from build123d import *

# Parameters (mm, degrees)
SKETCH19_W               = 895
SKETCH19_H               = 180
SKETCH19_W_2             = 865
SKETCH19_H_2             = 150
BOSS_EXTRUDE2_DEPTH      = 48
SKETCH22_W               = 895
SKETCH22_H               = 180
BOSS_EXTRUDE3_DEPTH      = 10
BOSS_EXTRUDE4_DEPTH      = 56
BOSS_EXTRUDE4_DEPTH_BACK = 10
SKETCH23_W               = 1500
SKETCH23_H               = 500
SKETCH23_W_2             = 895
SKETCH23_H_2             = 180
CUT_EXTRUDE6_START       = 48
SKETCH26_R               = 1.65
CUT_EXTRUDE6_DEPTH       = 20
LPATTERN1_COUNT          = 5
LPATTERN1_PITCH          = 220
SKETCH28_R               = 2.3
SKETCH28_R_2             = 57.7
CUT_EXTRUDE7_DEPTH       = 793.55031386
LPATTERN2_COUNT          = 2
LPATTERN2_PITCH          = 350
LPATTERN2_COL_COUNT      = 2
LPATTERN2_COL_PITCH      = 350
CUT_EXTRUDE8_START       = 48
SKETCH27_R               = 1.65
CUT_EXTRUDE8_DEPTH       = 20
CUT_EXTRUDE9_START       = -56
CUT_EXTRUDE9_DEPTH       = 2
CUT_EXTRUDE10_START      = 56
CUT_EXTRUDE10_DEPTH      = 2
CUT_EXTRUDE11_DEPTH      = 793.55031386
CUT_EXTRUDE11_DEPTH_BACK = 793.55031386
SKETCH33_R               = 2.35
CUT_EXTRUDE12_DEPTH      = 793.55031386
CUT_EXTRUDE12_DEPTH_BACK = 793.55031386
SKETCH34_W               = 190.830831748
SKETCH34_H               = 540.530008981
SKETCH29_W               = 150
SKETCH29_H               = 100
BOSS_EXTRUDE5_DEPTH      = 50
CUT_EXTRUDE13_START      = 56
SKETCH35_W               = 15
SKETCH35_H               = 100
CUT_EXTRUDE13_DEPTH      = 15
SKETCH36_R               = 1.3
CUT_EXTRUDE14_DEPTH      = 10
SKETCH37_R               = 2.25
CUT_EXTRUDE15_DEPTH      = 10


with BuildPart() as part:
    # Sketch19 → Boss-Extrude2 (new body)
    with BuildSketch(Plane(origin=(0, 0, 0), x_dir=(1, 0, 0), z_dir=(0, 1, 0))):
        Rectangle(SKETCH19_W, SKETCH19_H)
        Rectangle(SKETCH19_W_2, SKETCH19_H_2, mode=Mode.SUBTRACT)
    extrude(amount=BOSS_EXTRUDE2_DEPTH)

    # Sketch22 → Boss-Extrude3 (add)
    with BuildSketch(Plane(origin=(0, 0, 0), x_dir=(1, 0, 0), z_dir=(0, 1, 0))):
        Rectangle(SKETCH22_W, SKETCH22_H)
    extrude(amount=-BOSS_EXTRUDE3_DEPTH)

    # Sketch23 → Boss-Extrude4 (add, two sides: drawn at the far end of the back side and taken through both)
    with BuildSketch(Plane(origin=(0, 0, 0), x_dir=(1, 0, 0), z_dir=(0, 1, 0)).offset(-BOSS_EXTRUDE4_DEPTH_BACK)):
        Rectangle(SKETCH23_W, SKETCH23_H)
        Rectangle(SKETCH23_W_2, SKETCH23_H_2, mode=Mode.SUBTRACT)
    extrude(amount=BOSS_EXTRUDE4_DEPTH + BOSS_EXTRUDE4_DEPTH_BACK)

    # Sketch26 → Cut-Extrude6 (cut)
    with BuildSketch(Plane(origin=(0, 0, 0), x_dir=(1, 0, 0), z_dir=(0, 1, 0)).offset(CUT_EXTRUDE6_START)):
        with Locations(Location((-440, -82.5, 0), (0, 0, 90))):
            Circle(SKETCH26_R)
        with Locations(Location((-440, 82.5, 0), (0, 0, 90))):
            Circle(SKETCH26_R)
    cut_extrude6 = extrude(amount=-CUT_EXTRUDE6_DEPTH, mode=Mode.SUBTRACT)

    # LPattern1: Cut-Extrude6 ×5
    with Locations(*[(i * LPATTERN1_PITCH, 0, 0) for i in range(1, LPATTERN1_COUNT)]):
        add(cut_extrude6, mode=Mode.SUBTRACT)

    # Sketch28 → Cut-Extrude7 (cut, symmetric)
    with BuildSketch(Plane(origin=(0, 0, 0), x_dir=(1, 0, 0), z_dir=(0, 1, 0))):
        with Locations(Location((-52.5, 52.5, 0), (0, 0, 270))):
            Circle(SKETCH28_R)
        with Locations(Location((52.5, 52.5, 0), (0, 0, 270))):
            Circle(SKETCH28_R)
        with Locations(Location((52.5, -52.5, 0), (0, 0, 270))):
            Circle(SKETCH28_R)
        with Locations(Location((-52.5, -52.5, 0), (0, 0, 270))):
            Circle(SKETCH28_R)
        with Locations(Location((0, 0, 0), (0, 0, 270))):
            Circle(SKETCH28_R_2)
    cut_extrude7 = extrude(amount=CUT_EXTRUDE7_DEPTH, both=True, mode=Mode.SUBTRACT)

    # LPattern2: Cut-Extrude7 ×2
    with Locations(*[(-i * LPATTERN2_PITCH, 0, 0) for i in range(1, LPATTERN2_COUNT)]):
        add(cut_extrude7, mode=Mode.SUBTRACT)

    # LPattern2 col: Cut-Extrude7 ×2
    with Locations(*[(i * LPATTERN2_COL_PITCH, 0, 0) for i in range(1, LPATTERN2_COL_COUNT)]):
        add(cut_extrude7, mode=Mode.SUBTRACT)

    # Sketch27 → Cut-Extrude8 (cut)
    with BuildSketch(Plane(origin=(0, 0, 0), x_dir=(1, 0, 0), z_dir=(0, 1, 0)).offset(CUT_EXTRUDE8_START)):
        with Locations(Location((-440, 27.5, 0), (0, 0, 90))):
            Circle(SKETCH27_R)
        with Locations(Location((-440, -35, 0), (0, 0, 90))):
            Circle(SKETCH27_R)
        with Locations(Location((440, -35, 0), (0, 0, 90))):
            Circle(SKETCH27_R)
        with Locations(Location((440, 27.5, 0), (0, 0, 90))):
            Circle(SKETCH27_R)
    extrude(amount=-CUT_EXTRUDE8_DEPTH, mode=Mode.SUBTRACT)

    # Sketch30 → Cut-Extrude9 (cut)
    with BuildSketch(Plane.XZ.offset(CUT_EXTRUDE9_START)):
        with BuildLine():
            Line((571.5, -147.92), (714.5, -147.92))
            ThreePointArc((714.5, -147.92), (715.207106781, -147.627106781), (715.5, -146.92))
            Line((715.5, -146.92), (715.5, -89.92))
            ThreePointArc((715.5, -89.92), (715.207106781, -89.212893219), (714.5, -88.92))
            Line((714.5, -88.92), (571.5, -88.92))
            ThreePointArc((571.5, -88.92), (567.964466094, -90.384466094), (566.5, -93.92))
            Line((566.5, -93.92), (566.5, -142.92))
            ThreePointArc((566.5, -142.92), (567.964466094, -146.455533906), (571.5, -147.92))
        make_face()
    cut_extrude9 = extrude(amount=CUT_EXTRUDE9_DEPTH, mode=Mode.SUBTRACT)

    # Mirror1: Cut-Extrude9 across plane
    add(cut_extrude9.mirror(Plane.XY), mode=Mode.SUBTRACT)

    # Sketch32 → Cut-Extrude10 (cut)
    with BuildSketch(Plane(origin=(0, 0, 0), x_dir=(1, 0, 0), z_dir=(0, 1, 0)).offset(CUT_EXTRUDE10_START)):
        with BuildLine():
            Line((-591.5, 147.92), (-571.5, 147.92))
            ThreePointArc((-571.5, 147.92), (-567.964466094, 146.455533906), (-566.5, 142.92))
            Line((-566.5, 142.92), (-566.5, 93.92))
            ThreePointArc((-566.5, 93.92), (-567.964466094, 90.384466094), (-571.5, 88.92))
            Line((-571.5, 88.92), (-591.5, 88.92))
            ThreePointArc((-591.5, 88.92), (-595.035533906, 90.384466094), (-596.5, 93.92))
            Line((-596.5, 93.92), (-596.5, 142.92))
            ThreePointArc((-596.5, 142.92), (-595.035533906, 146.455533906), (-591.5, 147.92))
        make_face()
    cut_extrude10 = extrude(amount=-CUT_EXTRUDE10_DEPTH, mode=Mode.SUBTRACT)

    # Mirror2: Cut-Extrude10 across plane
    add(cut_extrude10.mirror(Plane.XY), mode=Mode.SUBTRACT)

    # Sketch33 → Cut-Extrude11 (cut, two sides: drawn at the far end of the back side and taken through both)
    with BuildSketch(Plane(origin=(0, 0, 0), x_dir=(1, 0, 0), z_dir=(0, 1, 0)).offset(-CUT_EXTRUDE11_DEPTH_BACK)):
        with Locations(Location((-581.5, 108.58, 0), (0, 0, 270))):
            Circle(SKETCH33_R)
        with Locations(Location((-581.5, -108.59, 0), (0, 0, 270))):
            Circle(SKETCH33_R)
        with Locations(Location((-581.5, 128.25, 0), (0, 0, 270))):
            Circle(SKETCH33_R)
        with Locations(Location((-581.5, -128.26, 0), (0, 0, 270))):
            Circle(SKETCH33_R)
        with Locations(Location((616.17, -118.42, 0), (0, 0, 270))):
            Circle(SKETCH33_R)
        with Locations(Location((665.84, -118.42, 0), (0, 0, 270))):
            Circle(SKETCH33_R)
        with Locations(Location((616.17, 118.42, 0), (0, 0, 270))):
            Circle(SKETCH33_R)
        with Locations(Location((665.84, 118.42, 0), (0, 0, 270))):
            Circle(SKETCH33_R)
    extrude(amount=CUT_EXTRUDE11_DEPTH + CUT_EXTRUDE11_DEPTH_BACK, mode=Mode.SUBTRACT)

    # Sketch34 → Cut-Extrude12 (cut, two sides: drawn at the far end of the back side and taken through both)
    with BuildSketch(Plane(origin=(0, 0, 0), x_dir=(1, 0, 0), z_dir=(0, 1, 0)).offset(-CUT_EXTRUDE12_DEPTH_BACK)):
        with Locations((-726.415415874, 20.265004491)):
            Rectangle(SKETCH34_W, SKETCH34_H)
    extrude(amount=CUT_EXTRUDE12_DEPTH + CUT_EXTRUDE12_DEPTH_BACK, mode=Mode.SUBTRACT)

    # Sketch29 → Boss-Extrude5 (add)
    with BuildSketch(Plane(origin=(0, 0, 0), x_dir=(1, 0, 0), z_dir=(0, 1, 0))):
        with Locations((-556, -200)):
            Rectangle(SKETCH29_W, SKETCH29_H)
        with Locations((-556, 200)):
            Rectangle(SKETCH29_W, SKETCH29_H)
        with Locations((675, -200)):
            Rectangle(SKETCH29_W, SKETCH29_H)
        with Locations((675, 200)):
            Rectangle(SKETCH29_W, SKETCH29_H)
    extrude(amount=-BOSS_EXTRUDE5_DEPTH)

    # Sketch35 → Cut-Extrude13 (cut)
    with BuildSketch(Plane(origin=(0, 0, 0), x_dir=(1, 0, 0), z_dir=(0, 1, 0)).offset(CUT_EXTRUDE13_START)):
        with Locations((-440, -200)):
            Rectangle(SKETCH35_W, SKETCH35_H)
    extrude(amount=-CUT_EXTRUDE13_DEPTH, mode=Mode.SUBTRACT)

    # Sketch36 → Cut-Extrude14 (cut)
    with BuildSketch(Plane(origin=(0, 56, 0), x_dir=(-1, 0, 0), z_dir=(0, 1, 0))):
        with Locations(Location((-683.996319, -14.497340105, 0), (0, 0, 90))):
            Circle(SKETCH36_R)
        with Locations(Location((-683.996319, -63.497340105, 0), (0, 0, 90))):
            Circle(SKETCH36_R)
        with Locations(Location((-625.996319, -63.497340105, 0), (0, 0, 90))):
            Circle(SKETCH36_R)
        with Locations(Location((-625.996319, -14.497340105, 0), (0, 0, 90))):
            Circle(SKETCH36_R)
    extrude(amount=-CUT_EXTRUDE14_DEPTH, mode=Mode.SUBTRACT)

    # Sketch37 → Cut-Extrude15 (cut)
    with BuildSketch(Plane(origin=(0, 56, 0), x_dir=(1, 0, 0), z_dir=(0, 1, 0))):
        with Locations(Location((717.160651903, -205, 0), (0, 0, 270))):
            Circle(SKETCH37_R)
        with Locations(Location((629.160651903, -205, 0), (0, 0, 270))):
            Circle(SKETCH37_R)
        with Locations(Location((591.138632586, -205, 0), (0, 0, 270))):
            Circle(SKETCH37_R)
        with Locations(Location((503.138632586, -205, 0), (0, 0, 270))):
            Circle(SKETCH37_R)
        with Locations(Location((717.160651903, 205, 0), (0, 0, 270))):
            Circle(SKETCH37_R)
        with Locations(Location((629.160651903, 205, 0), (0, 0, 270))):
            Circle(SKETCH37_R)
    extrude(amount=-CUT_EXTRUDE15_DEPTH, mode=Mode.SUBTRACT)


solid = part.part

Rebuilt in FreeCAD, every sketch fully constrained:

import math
import FreeCAD as App
import Part
import Sketcher

V = App.Vector


def add_polygon(sketch, points):
    """Adds a closed chain of lines whose ends are joined by coincident constraints."""
    first, n = sketch.GeometryCount, len(points)
    for a, b in zip(points, points[1:] + points[:1]):
        sketch.addGeometry(Part.LineSegment(App.Vector(*a, 0), App.Vector(*b, 0)), False)
    for i in range(n):
        sketch.addConstraint(Sketcher.Constraint("Coincident", first + i, 2, first + (i + 1) % n, 1))

doc = App.newDocument("Part")
body = doc.addObject("PartDesign::Body", "Body")

# Sketch on XZ plane
sketch1 = body.newObject("Sketcher::SketchObject", "Sketch")
sketch1.AttachmentSupport = (doc.getObject("XZ_Plane"), [""])
sketch1.MapMode = "FlatFace"
add_polygon(sketch1, [(-448, -90), (-448, 90), (448, 90), (448, -90)])  # lines 0-3
add_polygon(sketch1, [(432, 75), (-432, 75), (-432, -75), (432, -75)])  # lines 4-7
sketch1.addConstraint(Sketcher.Constraint("Vertical", 0))
sketch1.addConstraint(Sketcher.Constraint("Horizontal", 1))
sketch1.addConstraint(Sketcher.Constraint("Vertical", 2))
sketch1.addConstraint(Sketcher.Constraint("Horizontal", 3))
sketch1.addConstraint(Sketcher.Constraint("Horizontal", 4))
sketch1.addConstraint(Sketcher.Constraint("Vertical", 5))
sketch1.addConstraint(Sketcher.Constraint("Horizontal", 6))
sketch1.addConstraint(Sketcher.Constraint("Vertical", 7))
sketch1.addConstraint(Sketcher.Constraint("Symmetric", 0, 2, 2, 2, -1, 1))
sketch1.addConstraint(Sketcher.Constraint("Symmetric", 4, 2, 6, 2, -1, 1))
sketch1.addConstraint(Sketcher.Constraint("DistanceX", 1, 1, 1, 2, 895.0))
sketch1.addConstraint(Sketcher.Constraint("DistanceX", 4, 2, 4, 1, 865.0))
sketch1.addConstraint(Sketcher.Constraint("DistanceY", 0, 1, 0, 2, 180.0))
sketch1.addConstraint(Sketcher.Constraint("DistanceY", 5, 2, 5, 1, 150.0))
pad1 = body.newObject("PartDesign::Pad", "Pad")
pad1.Profile = sketch1
pad1.Length = 48
pad1.Reversed = True

# Sketch on XZ plane
sketch2 = body.newObject("Sketcher::SketchObject", "Sketch001")
sketch2.AttachmentSupport = (doc.getObject("XZ_Plane"), [""])
sketch2.MapMode = "FlatFace"
add_polygon(sketch2, [(-448, -90), (-448, 90), (448, 90), (448, -90)])  # lines 0-3
sketch2.addConstraint(Sketcher.Constraint("Vertical", 0))
sketch2.addConstraint(Sketcher.Constraint("Horizontal", 1))
sketch2.addConstraint(Sketcher.Constraint("Vertical", 2))
sketch2.addConstraint(Sketcher.Constraint("Horizontal", 3))
sketch2.addConstraint(Sketcher.Constraint("Symmetric", 0, 2, 2, 2, -1, 1))
sketch2.addConstraint(Sketcher.Constraint("DistanceX", 1, 1, 1, 2, 895.0))
sketch2.addConstraint(Sketcher.Constraint("DistanceY", 0, 1, 0, 2, 180.0))
pad2 = body.newObject("PartDesign::Pad", "Pad001")
pad2.Profile = sketch2
pad2.Length = 10

# Sketch on XZ plane
sketch3 = body.newObject("Sketcher::SketchObject", "Sketch002")
sketch3.AttachmentSupport = (doc.getObject("XZ_Plane"), [""])
sketch3.MapMode = "FlatFace"
add_polygon(sketch3, [(-750, -250), (-750, 250), (750, 250), (750, -250)])  # lines 0-3
add_polygon(sketch3, [(448, 90), (-448, 90), (-448, -90), (448, -90)])  # lines 4-7
sketch3.addConstraint(Sketcher.Constraint("Vertical", 0))
sketch3.addConstraint(Sketcher.Constraint("Horizontal", 1))
sketch3.addConstraint(Sketcher.Constraint("Vertical", 2))
sketch3.addConstraint(Sketcher.Constraint("Horizontal", 3))
sketch3.addConstraint(Sketcher.Constraint("Horizontal", 4))
sketch3.addConstraint(Sketcher.Constraint("Vertical", 5))
sketch3.addConstraint(Sketcher.Constraint("Horizontal", 6))
sketch3.addConstraint(Sketcher.Constraint("Vertical", 7))
sketch3.addConstraint(Sketcher.Constraint("Symmetric", 0, 2, 2, 2, -1, 1))
sketch3.addConstraint(Sketcher.Constraint("Symmetric", 4, 2, 6, 2, -1, 1))
sketch3.addConstraint(Sketcher.Constraint("DistanceX", 1, 1, 1, 2, 1500.0))
sketch3.addConstraint(Sketcher.Constraint("DistanceX", 4, 2, 4, 1, 895.0))
sketch3.addConstraint(Sketcher.Constraint("DistanceY", 0, 1, 0, 2, 500.0))
sketch3.addConstraint(Sketcher.Constraint("DistanceY", 5, 2, 5, 1, 180.0))
pad3 = body.newObject("PartDesign::Pad", "Pad002")
pad3.Profile = sketch3
pad3.Type = "TwoLengths"
pad3.Length = 56
pad3.Length2 = 10
pad3.Reversed = True

# Sketch on XZ plane
sketch4 = body.newObject("Sketcher::SketchObject", "Sketch003")
sketch4.AttachmentSupport = (doc.getObject("XZ_Plane"), [""])
sketch4.MapMode = "FlatFace"
sketch4.AttachmentOffset = App.Placement(V(0, 0, -48), App.Rotation())
sketch4.addGeometry(Part.Circle(V(-440, 82.5, 0), V(0, 0, 1), 1.6), False)
sketch4.addGeometry(Part.Circle(V(-440, -82.5, 0), V(0, 0, 1), 1.6), False)
sketch4.addConstraint(Sketcher.Constraint("Equal", 0, 1))
sketch4.addConstraint(Sketcher.Constraint("Symmetric", 0, 3, 1, 3, -1))
sketch4.addConstraint(Sketcher.Constraint("Diameter", 0, 3.3))
sketch4.addConstraint(Sketcher.Constraint("DistanceX", 0, 3, -1, 1, 440.0))
sketch4.addConstraint(Sketcher.Constraint("DistanceY", 1, 3, 0, 3, 165.0))
pocket1 = body.newObject("PartDesign::Pocket", "Pocket")
pocket1.Profile = sketch4
pocket1.Length = 20
pocket1.Reversed = True
doc.recompute()

linearpattern = body.newObject("PartDesign::LinearPattern", "LinearPattern")
linearpattern.Originals = [pocket1]
linearpattern.Direction = (doc.getObject("X_Axis"), [""])
linearpattern.Mode = "offset"
linearpattern.Offset = 220
linearpattern.Occurrences = 5
body.Tip = linearpattern

# Sketch on XZ plane
sketch5 = body.newObject("Sketcher::SketchObject", "Sketch004")
sketch5.AttachmentSupport = (doc.getObject("XZ_Plane"), [""])
sketch5.MapMode = "FlatFace"
sketch5.addGeometry(Part.Circle(V(-52.5, -52.5, 0), V(0, 0, 1), 2.3), False)
sketch5.addGeometry(Part.Circle(V(52.5, -52.5, 0), V(0, 0, 1), 2.3), False)
sketch5.addGeometry(Part.Circle(V(52.5, 52.5, 0), V(0, 0, 1), 2.3), False)
sketch5.addGeometry(Part.Circle(V(-52.5, 52.5, 0), V(0, 0, 1), 2.3), False)
sketch5.addGeometry(Part.Circle(V(0, 0, 0), V(0, 0, 1), 57.7), False)
sketch5.addConstraint(Sketcher.Constraint("Coincident", 4, 3, -1, 1))
sketch5.addConstraint(Sketcher.Constraint("Equal", 0, 1))
sketch5.addConstraint(Sketcher.Constraint("Equal", 1, 2))
sketch5.addConstraint(Sketcher.Constraint("Equal", 2, 3))
sketch5.addConstraint(Sketcher.Constraint("Symmetric", 0, 3, 2, 3, -1, 1))
sketch5.addConstraint(Sketcher.Constraint("Symmetric", 1, 3, 3, 3, -1, 1))
sketch5.addConstraint(Sketcher.Constraint("Symmetric", 0, 3, 1, 3, -2))
sketch5.addConstraint(Sketcher.Constraint("Diameter", 0, 4.6))
sketch5.addConstraint(Sketcher.Constraint("Diameter", 4, 115.4))
sketch5.addConstraint(Sketcher.Constraint("DistanceX", 0, 3, 1, 3, 105.0))
sketch5.addConstraint(Sketcher.Constraint("DistanceY", 1, 3, 2, 3, 105.0))
pocket2 = body.newObject("PartDesign::Pocket", "Pocket001")
pocket2.Profile = sketch5
pocket2.Length = 1587.100628
pocket2.Midplane = True
doc.recompute()

linearpattern2 = body.newObject("PartDesign::LinearPattern", "LinearPattern001")
linearpattern2.Originals = [pocket2]
linearpattern2.Direction = (doc.getObject("X_Axis"), [""])
linearpattern2.Mode = "offset"
linearpattern2.Offset = 350
linearpattern2.Occurrences = 2
linearpattern2.Reversed = True
body.Tip = linearpattern2
doc.recompute()

linearpattern3 = body.newObject("PartDesign::LinearPattern", "LinearPattern002")
linearpattern3.Originals = [pocket2]
linearpattern3.Direction = (doc.getObject("X_Axis"), [""])
linearpattern3.Mode = "offset"
linearpattern3.Offset = 350
linearpattern3.Occurrences = 2
body.Tip = linearpattern3

# Sketch on XZ plane
sketch6 = body.newObject("Sketcher::SketchObject", "Sketch005")
sketch6.AttachmentSupport = (doc.getObject("XZ_Plane"), [""])
sketch6.MapMode = "FlatFace"
sketch6.AttachmentOffset = App.Placement(V(0, 0, -48), App.Rotation())
sketch6.addGeometry(Part.Circle(V(-440, -27.5, 0), V(0, 0, 1), 1.6), False)
sketch6.addGeometry(Part.Circle(V(-440, 35, 0), V(0, 0, 1), 1.6), False)
sketch6.addGeometry(Part.Circle(V(440, 35, 0), V(0, 0, 1), 1.6), False)
sketch6.addGeometry(Part.Circle(V(440, -27.5, 0), V(0, 0, 1), 1.6), False)
sketch6.addConstraint(Sketcher.Constraint("Equal", 0, 1))
sketch6.addConstraint(Sketcher.Constraint("Equal", 1, 2))
sketch6.addConstraint(Sketcher.Constraint("Equal", 2, 3))
sketch6.addConstraint(Sketcher.Constraint("Symmetric", 1, 3, 2, 3, -2))
sketch6.addConstraint(Sketcher.Constraint("Symmetric", 0, 3, 3, 3, -2))
sketch6.addConstraint(Sketcher.Constraint("Vertical", 0, 3, 1, 3))
sketch6.addConstraint(Sketcher.Constraint("Diameter", 0, 3.3))
sketch6.addConstraint(Sketcher.Constraint("DistanceX", 0, 3, -1, 1, 440.0))
sketch6.addConstraint(Sketcher.Constraint("DistanceY", -1, 1, 1, 3, 35.0))
sketch6.addConstraint(Sketcher.Constraint("DistanceY", 0, 3, -1, 1, 27.5))
pocket3 = body.newObject("PartDesign::Pocket", "Pocket002")
pocket3.Profile = sketch6
pocket3.Length = 20
pocket3.Reversed = True

# Sketch on XZ plane
sketch7 = body.newObject("Sketcher::SketchObject", "Sketch006")
sketch7.AttachmentSupport = (doc.getObject("XZ_Plane"), [""])
sketch7.MapMode = "FlatFace"
sketch7.AttachmentOffset = App.Placement(V(0, 0, -56), App.Rotation())
sketch7.addGeometry(Part.LineSegment(V(571.5, -147.9, 0), V(714.5, -147.9, 0)), False)
sketch7.addGeometry(Part.ArcOfCircle(Part.Circle(V(714.5, -146.9, 0), V(0, 0, 1), 1), math.radians(-90), math.radians(0)), False)
sketch7.addGeometry(Part.LineSegment(V(715.5, -146.9, 0), V(715.5, -89.9, 0)), False)
sketch7.addGeometry(Part.ArcOfCircle(Part.Circle(V(714.5, -89.9, 0), V(0, 0, 1), 1), math.radians(0), math.radians(90)), False)
sketch7.addGeometry(Part.LineSegment(V(714.5, -88.9, 0), V(571.5, -88.9, 0)), False)
sketch7.addGeometry(Part.ArcOfCircle(Part.Circle(V(571.5, -93.9, 0), V(0, 0, 1), 5), math.radians(90), math.radians(180)), False)
sketch7.addGeometry(Part.LineSegment(V(566.5, -93.9, 0), V(566.5, -142.9, 0)), False)
sketch7.addGeometry(Part.ArcOfCircle(Part.Circle(V(571.5, -142.9, 0), V(0, 0, 1), 5), math.radians(180), math.radians(270)), False)
sketch7.addConstraint(Sketcher.Constraint("Tangent", 0, 2, 1, 1))
sketch7.addConstraint(Sketcher.Constraint("Tangent", 1, 2, 2, 1))
sketch7.addConstraint(Sketcher.Constraint("Tangent", 2, 2, 3, 1))
sketch7.addConstraint(Sketcher.Constraint("Tangent", 3, 2, 4, 1))
sketch7.addConstraint(Sketcher.Constraint("Tangent", 4, 2, 5, 1))
sketch7.addConstraint(Sketcher.Constraint("Tangent", 5, 2, 6, 1))
sketch7.addConstraint(Sketcher.Constraint("Tangent", 6, 2, 7, 1))
sketch7.addConstraint(Sketcher.Constraint("Tangent", 7, 2, 0, 1))
sketch7.addConstraint(Sketcher.Constraint("Horizontal", 0))
sketch7.addConstraint(Sketcher.Constraint("Vertical", 2))
sketch7.addConstraint(Sketcher.Constraint("Horizontal", 4))
sketch7.addConstraint(Sketcher.Constraint("Vertical", 6))
sketch7.addConstraint(Sketcher.Constraint("Equal", 1, 3))
sketch7.addConstraint(Sketcher.Constraint("Equal", 5, 7))
sketch7.addConstraint(Sketcher.Constraint("Radius", 1, 1.0))
sketch7.addConstraint(Sketcher.Constraint("Radius", 5, 5.0))
sketch7.addConstraint(Sketcher.Constraint("DistanceX", 0, 1, 0, 2, 143.0))
sketch7.addConstraint(Sketcher.Constraint("DistanceY", 2, 1, 2, 2, 57.0))
sketch7.addConstraint(Sketcher.Constraint("DistanceX", -1, 1, 1, 3, 714.5))
sketch7.addConstraint(Sketcher.Constraint("DistanceY", 1, 3, -1, 1, 146.92))
pocket4 = body.newObject("PartDesign::Pocket", "Pocket003")
pocket4.Profile = sketch7
pocket4.Length = 2
pocket4.Reversed = True
doc.recompute()

mirrored = body.newObject("PartDesign::Mirrored", "Mirrored")
mirrored.Originals = [pocket4]
mirrored.MirrorPlane = (doc.getObject("XY_Plane"), [""])
body.Tip = mirrored

# Sketch on XZ plane
sketch8 = body.newObject("Sketcher::SketchObject", "Sketch007")
sketch8.AttachmentSupport = (doc.getObject("XZ_Plane"), [""])
sketch8.MapMode = "FlatFace"
sketch8.AttachmentOffset = App.Placement(V(0, 0, -56), App.Rotation())
sketch8.addGeometry(Part.LineSegment(V(-572, -148, 0), V(-592, -148, 0)), False)
sketch8.addGeometry(Part.ArcOfCircle(Part.Circle(V(-592, -143, 0), V(0, 0, 1), 5), math.radians(180), math.radians(270)), False)
sketch8.addGeometry(Part.LineSegment(V(-596, -143, 0), V(-596, -94, 0)), False)
sketch8.addGeometry(Part.ArcOfCircle(Part.Circle(V(-592, -94, 0), V(0, 0, 1), 5), math.radians(90), math.radians(180)), False)
sketch8.addGeometry(Part.LineSegment(V(-592, -89, 0), V(-572, -89, 0)), False)
sketch8.addGeometry(Part.ArcOfCircle(Part.Circle(V(-572, -94, 0), V(0, 0, 1), 5), math.radians(0), math.radians(90)), False)
sketch8.addGeometry(Part.LineSegment(V(-566, -94, 0), V(-566, -143, 0)), False)
sketch8.addGeometry(Part.ArcOfCircle(Part.Circle(V(-572, -143, 0), V(0, 0, 1), 5), math.radians(-90), math.radians(0)), False)
sketch8.addConstraint(Sketcher.Constraint("Tangent", 0, 2, 1, 2))
sketch8.addConstraint(Sketcher.Constraint("Tangent", 1, 1, 2, 1))
sketch8.addConstraint(Sketcher.Constraint("Tangent", 2, 2, 3, 2))
sketch8.addConstraint(Sketcher.Constraint("Tangent", 3, 1, 4, 1))
sketch8.addConstraint(Sketcher.Constraint("Tangent", 4, 2, 5, 2))
sketch8.addConstraint(Sketcher.Constraint("Tangent", 5, 1, 6, 1))
sketch8.addConstraint(Sketcher.Constraint("Tangent", 6, 2, 7, 2))
sketch8.addConstraint(Sketcher.Constraint("Tangent", 7, 1, 0, 1))
sketch8.addConstraint(Sketcher.Constraint("Horizontal", 0))
sketch8.addConstraint(Sketcher.Constraint("Vertical", 2))
sketch8.addConstraint(Sketcher.Constraint("Horizontal", 4))
sketch8.addConstraint(Sketcher.Constraint("Vertical", 6))
sketch8.addConstraint(Sketcher.Constraint("Equal", 1, 3))
sketch8.addConstraint(Sketcher.Constraint("Equal", 3, 5))
sketch8.addConstraint(Sketcher.Constraint("Equal", 5, 7))
sketch8.addConstraint(Sketcher.Constraint("Radius", 1, 5.0))
sketch8.addConstraint(Sketcher.Constraint("DistanceX", 0, 2, 0, 1, 20.0))
sketch8.addConstraint(Sketcher.Constraint("DistanceY", 2, 1, 2, 2, 49.0))
sketch8.addConstraint(Sketcher.Constraint("DistanceX", 1, 3, -1, 1, 591.5))
sketch8.addConstraint(Sketcher.Constraint("DistanceY", 1, 3, -1, 1, 142.92))
pocket5 = body.newObject("PartDesign::Pocket", "Pocket004")
pocket5.Profile = sketch8
pocket5.Length = 2
pocket5.Reversed = True
doc.recompute()

mirrored2 = body.newObject("PartDesign::Mirrored", "Mirrored001")
mirrored2.Originals = [pocket5]
mirrored2.MirrorPlane = (doc.getObject("XY_Plane"), [""])
body.Tip = mirrored2

# Sketch on XZ plane
sketch9 = body.newObject("Sketcher::SketchObject", "Sketch008")
sketch9.AttachmentSupport = (doc.getObject("XZ_Plane"), [""])
sketch9.MapMode = "FlatFace"
sketch9.addGeometry(Part.Circle(V(-581.5, -108.6, 0), V(0, 0, 1), 2.4), False)
sketch9.addGeometry(Part.Circle(V(-581.5, 108.6, 0), V(0, 0, 1), 2.4), False)
sketch9.addGeometry(Part.Circle(V(-581.5, -128.2, 0), V(0, 0, 1), 2.4), False)
sketch9.addGeometry(Part.Circle(V(-581.5, 128.3, 0), V(0, 0, 1), 2.4), False)
sketch9.addGeometry(Part.Circle(V(616.2, 118.4, 0), V(0, 0, 1), 2.4), False)
sketch9.addGeometry(Part.Circle(V(665.8, 118.4, 0), V(0, 0, 1), 2.4), False)
sketch9.addGeometry(Part.Circle(V(616.2, -118.4, 0), V(0, 0, 1), 2.4), False)
sketch9.addGeometry(Part.Circle(V(665.8, -118.4, 0), V(0, 0, 1), 2.4), False)
sketch9.addConstraint(Sketcher.Constraint("Equal", 0, 1))
sketch9.addConstraint(Sketcher.Constraint("Equal", 1, 2))
sketch9.addConstraint(Sketcher.Constraint("Equal", 2, 3))
sketch9.addConstraint(Sketcher.Constraint("Equal", 3, 4))
sketch9.addConstraint(Sketcher.Constraint("Equal", 4, 5))
sketch9.addConstraint(Sketcher.Constraint("Equal", 5, 6))
sketch9.addConstraint(Sketcher.Constraint("Equal", 6, 7))
sketch9.addConstraint(Sketcher.Constraint("Symmetric", 4, 3, 6, 3, -1))
sketch9.addConstraint(Sketcher.Constraint("Symmetric", 5, 3, 7, 3, -1))
sketch9.addConstraint(Sketcher.Constraint("Horizontal", 4, 3, 5, 3))
sketch9.addConstraint(Sketcher.Constraint("Vertical", 0, 3, 1, 3))
sketch9.addConstraint(Sketcher.Constraint("Vertical", 1, 3, 2, 3))
sketch9.addConstraint(Sketcher.Constraint("Vertical", 2, 3, 3, 3))
sketch9.addConstraint(Sketcher.Constraint("Diameter", 0, 4.7))
sketch9.addConstraint(Sketcher.Constraint("DistanceY", 0, 3, 4, 3, 227.0))
sketch9.addConstraint(Sketcher.Constraint("DistanceX", 0, 3, -1, 1, 581.5))
sketch9.addConstraint(Sketcher.Constraint("DistanceY", 0, 3, -1, 1, 108.58))
sketch9.addConstraint(Sketcher.Constraint("DistanceY", -1, 1, 1, 3, 108.59))
sketch9.addConstraint(Sketcher.Constraint("DistanceY", 2, 3, -1, 1, 128.25))
sketch9.addConstraint(Sketcher.Constraint("DistanceY", -1, 1, 3, 3, 128.26))
sketch9.addConstraint(Sketcher.Constraint("DistanceX", -1, 1, 4, 3, 616.17))
sketch9.addConstraint(Sketcher.Constraint("DistanceX", -1, 1, 5, 3, 665.84))
pocket6 = body.newObject("PartDesign::Pocket", "Pocket005")
pocket6.Profile = sketch9
pocket6.Type = "ThroughAll"
pocket6.Midplane = True

# Sketch on XZ plane
sketch10 = body.newObject("Sketcher::SketchObject", "Sketch009")
sketch10.AttachmentSupport = (doc.getObject("XZ_Plane"), [""])
sketch10.MapMode = "FlatFace"
add_polygon(sketch10, [(-822, -291), (-822, 250), (-631, 250), (-631, -291)])  # lines 0-3
sketch10.addConstraint(Sketcher.Constraint("Vertical", 0))
sketch10.addConstraint(Sketcher.Constraint("Horizontal", 1))
sketch10.addConstraint(Sketcher.Constraint("Vertical", 2))
sketch10.addConstraint(Sketcher.Constraint("Horizontal", 3))
sketch10.addConstraint(Sketcher.Constraint("DistanceY", -1, 1, 0, 2, 250.0))
sketch10.addConstraint(Sketcher.Constraint("DistanceX", 1, 2, -1, 1, 631.0))
sketch10.addConstraint(Sketcher.Constraint("DistanceX", 1, 1, 1, 2, 190.830832))
sketch10.addConstraint(Sketcher.Constraint("DistanceY", 0, 1, 0, 2, 540.530009))
pocket7 = body.newObject("PartDesign::Pocket", "Pocket006")
pocket7.Profile = sketch10
pocket7.Type = "ThroughAll"
pocket7.Midplane = True

# Sketch on XZ plane
sketch11 = body.newObject("Sketcher::SketchObject", "Sketch010")
sketch11.AttachmentSupport = (doc.getObject("XZ_Plane"), [""])
sketch11.MapMode = "FlatFace"
add_polygon(sketch11, [(-631, 150), (-631, 250), (-481, 250), (-481, 150)])  # lines 0-3
add_polygon(sketch11, [(-631, -250), (-631, -150), (-481, -150), (-481, -250)])  # lines 4-7
add_polygon(sketch11, [(600, 150), (600, 250), (750, 250), (750, 150)])  # lines 8-11
add_polygon(sketch11, [(600, -250), (600, -150), (750, -150), (750, -250)])  # lines 12-15
sketch11.addConstraint(Sketcher.Constraint("Vertical", 0))
sketch11.addConstraint(Sketcher.Constraint("Horizontal", 1))
sketch11.addConstraint(Sketcher.Constraint("Vertical", 2))
sketch11.addConstraint(Sketcher.Constraint("Horizontal", 3))
sketch11.addConstraint(Sketcher.Constraint("Vertical", 4))
sketch11.addConstraint(Sketcher.Constraint("Horizontal", 5))
sketch11.addConstraint(Sketcher.Constraint("Vertical", 6))
sketch11.addConstraint(Sketcher.Constraint("Horizontal", 7))
sketch11.addConstraint(Sketcher.Constraint("Vertical", 8))
sketch11.addConstraint(Sketcher.Constraint("Horizontal", 9))
sketch11.addConstraint(Sketcher.Constraint("Vertical", 10))
sketch11.addConstraint(Sketcher.Constraint("Horizontal", 11))
sketch11.addConstraint(Sketcher.Constraint("Vertical", 12))
sketch11.addConstraint(Sketcher.Constraint("Horizontal", 13))
sketch11.addConstraint(Sketcher.Constraint("Vertical", 14))
sketch11.addConstraint(Sketcher.Constraint("Horizontal", 15))
sketch11.addConstraint(Sketcher.Constraint("Symmetric", 3, 2, 4, 2, -1))
sketch11.addConstraint(Sketcher.Constraint("Symmetric", 1, 2, 6, 2, -1))
sketch11.addConstraint(Sketcher.Constraint("Symmetric", 11, 2, 12, 2, -1))
sketch11.addConstraint(Sketcher.Constraint("Symmetric", 9, 2, 14, 2, -1))
sketch11.addConstraint(Sketcher.Constraint("Horizontal", 1, 2, 8, 2))
sketch11.addConstraint(Sketcher.Constraint("Horizontal", 3, 2, 10, 2))
sketch11.addConstraint(Sketcher.Constraint("Equal", 7, 9))
sketch11.addConstraint(Sketcher.Constraint("DistanceX", 1, 1, 1, 2, 150.0))
sketch11.addConstraint(Sketcher.Constraint("DistanceY", 0, 1, 0, 2, 100.0))
sketch11.addConstraint(Sketcher.Constraint("DistanceX", 0, 2, -1, 1, 631.0))
sketch11.addConstraint(Sketcher.Constraint("DistanceY", -1, 1, 0, 2, 250.0))
sketch11.addConstraint(Sketcher.Constraint("DistanceX", -1, 1, 8, 2, 600.0))
pad4 = body.newObject("PartDesign::Pad", "Pad003")
pad4.Profile = sketch11
pad4.Length = 50

# Sketch on XZ plane
sketch12 = body.newObject("Sketcher::SketchObject", "Sketch011")
sketch12.AttachmentSupport = (doc.getObject("XZ_Plane"), [""])
sketch12.MapMode = "FlatFace"
sketch12.AttachmentOffset = App.Placement(V(0, 0, -56), App.Rotation())
add_polygon(sketch12, [(-448, 150), (-448, 250), (-432, 250), (-432, 150)])  # lines 0-3
sketch12.addConstraint(Sketcher.Constraint("Vertical", 0))
sketch12.addConstraint(Sketcher.Constraint("Horizontal", 1))
sketch12.addConstraint(Sketcher.Constraint("Vertical", 2))
sketch12.addConstraint(Sketcher.Constraint("Horizontal", 3))
sketch12.addConstraint(Sketcher.Constraint("DistanceX", 1, 1, 1, 2, 15.0))
sketch12.addConstraint(Sketcher.Constraint("DistanceY", 0, 1, 0, 2, 100.0))
sketch12.addConstraint(Sketcher.Constraint("DistanceY", -1, 1, 0, 2, 250.0))
sketch12.addConstraint(Sketcher.Constraint("DistanceX", 0, 2, -1, 1, 447.5))
pocket8 = body.newObject("PartDesign::Pocket", "Pocket007")
pocket8.Profile = sketch12
pocket8.Length = 15
pocket8.Reversed = True

# Sketch on XZ plane
sketch13 = body.newObject("Sketcher::SketchObject", "Sketch012")
sketch13.AttachmentSupport = (doc.getObject("XZ_Plane"), [""])
sketch13.MapMode = "FlatFace"
sketch13.AttachmentOffset = App.Placement(V(0, 0, -56), App.Rotation())
sketch13.addGeometry(Part.Circle(V(684, -14.5, 0), V(0, 0, 1), 1.3), False)
sketch13.addGeometry(Part.Circle(V(684, -63.5, 0), V(0, 0, 1), 1.3), False)
sketch13.addGeometry(Part.Circle(V(626, -63.5, 0), V(0, 0, 1), 1.3), False)
sketch13.addGeometry(Part.Circle(V(626, -14.5, 0), V(0, 0, 1), 1.3), False)
sketch13.addConstraint(Sketcher.Constraint("Equal", 0, 1))
sketch13.addConstraint(Sketcher.Constraint("Equal", 1, 2))
sketch13.addConstraint(Sketcher.Constraint("Equal", 2, 3))
sketch13.addConstraint(Sketcher.Constraint("Horizontal", 1, 3, 2, 3))
sketch13.addConstraint(Sketcher.Constraint("Horizontal", 0, 3, 3, 3))
sketch13.addConstraint(Sketcher.Constraint("Vertical", 0, 3, 1, 3))
sketch13.addConstraint(Sketcher.Constraint("Vertical", 2, 3, 3, 3))
sketch13.addConstraint(Sketcher.Constraint("Diameter", 0, 2.6))
sketch13.addConstraint(Sketcher.Constraint("DistanceY", 1, 3, 0, 3, 49.0))
sketch13.addConstraint(Sketcher.Constraint("DistanceX", 2, 3, 1, 3, 58.0))
sketch13.addConstraint(Sketcher.Constraint("DistanceX", -1, 1, 0, 3, 683.996319))
sketch13.addConstraint(Sketcher.Constraint("DistanceY", 0, 3, -1, 1, 14.49734))
pocket9 = body.newObject("PartDesign::Pocket", "Pocket008")
pocket9.Profile = sketch13
pocket9.Length = 10
pocket9.Reversed = True

# Sketch on XZ plane
sketch14 = body.newObject("Sketcher::SketchObject", "Sketch013")
sketch14.AttachmentSupport = (doc.getObject("XZ_Plane"), [""])
sketch14.MapMode = "FlatFace"
sketch14.AttachmentOffset = App.Placement(V(0, 0, -56), App.Rotation())
sketch14.addGeometry(Part.Circle(V(717.2, 205, 0), V(0, 0, 1), 2.2), False)
sketch14.addGeometry(Part.Circle(V(629.2, 205, 0), V(0, 0, 1), 2.2), False)
sketch14.addGeometry(Part.Circle(V(591.1, 205, 0), V(0, 0, 1), 2.2), False)
sketch14.addGeometry(Part.Circle(V(503.1, 205, 0), V(0, 0, 1), 2.2), False)
sketch14.addGeometry(Part.Circle(V(717.2, -205, 0), V(0, 0, 1), 2.2), False)
sketch14.addGeometry(Part.Circle(V(629.2, -205, 0), V(0, 0, 1), 2.2), False)
sketch14.addConstraint(Sketcher.Constraint("Equal", 0, 1))
sketch14.addConstraint(Sketcher.Constraint("Equal", 1, 2))
sketch14.addConstraint(Sketcher.Constraint("Equal", 2, 3))
sketch14.addConstraint(Sketcher.Constraint("Equal", 3, 4))
sketch14.addConstraint(Sketcher.Constraint("Equal", 4, 5))
sketch14.addConstraint(Sketcher.Constraint("Symmetric", 0, 3, 4, 3, -1))
sketch14.addConstraint(Sketcher.Constraint("Symmetric", 1, 3, 5, 3, -1))
sketch14.addConstraint(Sketcher.Constraint("Horizontal", 0, 3, 1, 3))
sketch14.addConstraint(Sketcher.Constraint("Horizontal", 1, 3, 2, 3))
sketch14.addConstraint(Sketcher.Constraint("Horizontal", 2, 3, 3, 3))
sketch14.addConstraint(Sketcher.Constraint("Diameter", 0, 4.5))
sketch14.addConstraint(Sketcher.Constraint("DistanceY", -1, 1, 0, 3, 205.0))
sketch14.addConstraint(Sketcher.Constraint("DistanceX", 1, 3, 0, 3, 88.0))
sketch14.addConstraint(Sketcher.Constraint("DistanceX", 3, 3, 2, 3, 88.0))
sketch14.addConstraint(Sketcher.Constraint("DistanceX", -1, 1, 0, 3, 717.160652))
sketch14.addConstraint(Sketcher.Constraint("DistanceX", 2, 3, 1, 3, 38.022019))
pocket10 = body.newObject("PartDesign::Pocket", "Pocket009")
pocket10.Profile = sketch14
pocket10.Length = 10
pocket10.Reversed = True

doc.recompute()
